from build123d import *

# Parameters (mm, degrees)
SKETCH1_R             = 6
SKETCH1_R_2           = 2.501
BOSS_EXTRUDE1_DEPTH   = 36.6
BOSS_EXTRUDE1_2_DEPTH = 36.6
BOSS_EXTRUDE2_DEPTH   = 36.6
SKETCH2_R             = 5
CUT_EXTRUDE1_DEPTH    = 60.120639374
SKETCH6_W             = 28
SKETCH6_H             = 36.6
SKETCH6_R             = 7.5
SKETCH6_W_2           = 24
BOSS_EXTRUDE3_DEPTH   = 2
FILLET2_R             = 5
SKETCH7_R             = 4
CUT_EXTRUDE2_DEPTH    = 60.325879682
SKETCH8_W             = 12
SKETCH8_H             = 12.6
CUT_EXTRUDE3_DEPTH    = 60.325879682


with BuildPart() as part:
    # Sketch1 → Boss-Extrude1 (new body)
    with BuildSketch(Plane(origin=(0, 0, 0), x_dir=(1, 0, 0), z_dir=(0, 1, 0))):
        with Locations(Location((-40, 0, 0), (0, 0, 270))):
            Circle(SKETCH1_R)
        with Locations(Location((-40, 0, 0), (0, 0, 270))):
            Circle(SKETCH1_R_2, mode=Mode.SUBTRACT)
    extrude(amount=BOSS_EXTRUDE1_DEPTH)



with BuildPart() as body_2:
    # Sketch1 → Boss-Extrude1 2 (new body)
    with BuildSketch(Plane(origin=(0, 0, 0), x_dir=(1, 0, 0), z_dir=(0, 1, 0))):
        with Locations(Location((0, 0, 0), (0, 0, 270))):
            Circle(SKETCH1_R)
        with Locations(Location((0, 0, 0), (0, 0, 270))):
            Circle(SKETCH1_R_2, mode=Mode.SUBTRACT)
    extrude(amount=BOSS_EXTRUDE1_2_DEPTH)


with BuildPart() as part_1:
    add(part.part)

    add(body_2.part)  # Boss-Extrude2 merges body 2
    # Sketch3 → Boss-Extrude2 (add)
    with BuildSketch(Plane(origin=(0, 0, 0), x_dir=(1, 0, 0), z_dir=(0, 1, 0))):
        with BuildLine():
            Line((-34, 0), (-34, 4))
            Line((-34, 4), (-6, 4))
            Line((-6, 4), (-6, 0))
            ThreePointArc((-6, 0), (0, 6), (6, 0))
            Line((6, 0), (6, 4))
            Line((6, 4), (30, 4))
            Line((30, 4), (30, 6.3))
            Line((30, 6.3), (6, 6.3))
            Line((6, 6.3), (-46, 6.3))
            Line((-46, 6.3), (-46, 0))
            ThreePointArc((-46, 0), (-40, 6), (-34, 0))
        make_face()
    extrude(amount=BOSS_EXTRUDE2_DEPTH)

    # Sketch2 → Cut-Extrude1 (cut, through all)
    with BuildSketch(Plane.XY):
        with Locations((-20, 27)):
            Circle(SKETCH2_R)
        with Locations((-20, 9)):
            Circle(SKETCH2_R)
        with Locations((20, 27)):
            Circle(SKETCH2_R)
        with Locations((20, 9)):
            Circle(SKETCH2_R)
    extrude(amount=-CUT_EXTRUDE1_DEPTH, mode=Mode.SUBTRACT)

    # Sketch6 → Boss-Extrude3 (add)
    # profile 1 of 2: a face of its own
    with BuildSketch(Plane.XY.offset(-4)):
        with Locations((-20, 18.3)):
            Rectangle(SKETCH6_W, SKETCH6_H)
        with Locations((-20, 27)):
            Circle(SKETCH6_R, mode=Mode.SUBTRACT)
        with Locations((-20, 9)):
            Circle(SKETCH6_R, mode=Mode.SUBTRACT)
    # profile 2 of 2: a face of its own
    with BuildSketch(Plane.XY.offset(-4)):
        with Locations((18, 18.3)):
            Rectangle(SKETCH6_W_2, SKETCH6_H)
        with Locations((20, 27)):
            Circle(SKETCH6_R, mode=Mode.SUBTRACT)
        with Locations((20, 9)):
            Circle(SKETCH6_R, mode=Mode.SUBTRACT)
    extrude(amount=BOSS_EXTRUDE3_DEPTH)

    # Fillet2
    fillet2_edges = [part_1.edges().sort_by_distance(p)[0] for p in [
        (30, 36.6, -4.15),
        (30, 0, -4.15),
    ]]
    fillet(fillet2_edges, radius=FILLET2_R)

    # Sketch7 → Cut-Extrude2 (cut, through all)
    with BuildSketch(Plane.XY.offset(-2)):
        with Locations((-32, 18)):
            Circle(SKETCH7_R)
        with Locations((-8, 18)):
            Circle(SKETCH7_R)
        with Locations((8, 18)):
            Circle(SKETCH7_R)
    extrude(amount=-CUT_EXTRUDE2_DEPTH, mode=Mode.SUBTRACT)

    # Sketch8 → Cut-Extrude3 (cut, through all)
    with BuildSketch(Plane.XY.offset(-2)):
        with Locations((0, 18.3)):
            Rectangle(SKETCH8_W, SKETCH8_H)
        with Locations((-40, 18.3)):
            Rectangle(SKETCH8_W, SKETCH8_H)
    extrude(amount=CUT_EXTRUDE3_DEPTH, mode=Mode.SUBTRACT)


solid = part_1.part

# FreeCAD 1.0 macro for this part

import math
import FreeCAD as App
import Part
import Sketcher

V = App.Vector
Q = App.Units.Quantity


def edges_at(feature, points):
    """Names of the edges that pass closest to the given points."""
    edges = feature.Shape.Edges
    near = lambda p: min(range(len(edges)), key=lambda i: edges[i].distToShape(Part.Vertex(*p))[0])
    return sorted({f"Edge{near(p) + 1}" for p in points})


def add_polygon(sketch, points):
    """Adds a closed chain of lines whose ends are joined by coincident constraints."""
    first, n = sketch.GeometryCount, len(points)
    for a, b in zip(points, points[1:] + points[:1]):
        sketch.addGeometry(Part.LineSegment(App.Vector(*a, 0), App.Vector(*b, 0)), False)
    for i in range(n):
        sketch.addConstraint(Sketcher.Constraint("Coincident", first + i, 2, first + (i + 1) % n, 1))

doc = App.newDocument("Part")
body = doc.addObject("PartDesign::Body", "Body")

sketch1 = body.newObject("Sketcher::SketchObject", "Sketch")
sketch1.AttachmentSupport = (doc.getObject("XZ_Plane"), [""])
sketch1.MapMode = "FlatFace"
sketch1.addGeometry([
    Part.Circle(V(-40, 0, 0), V(0, 0, 1), 6),
    Part.Circle(V(-40, 0, 0), V(0, 0, 1), 2.5),
], False)
sketch1.addConstraint([
    Sketcher.Constraint("Coincident", 1, 3, 0, 3),
    Sketcher.Constraint("PointOnObject", 0, 3, -1),
    Sketcher.Constraint("Diameter", 0, Q("12 mm")),
    Sketcher.Constraint("Diameter", 1, Q("5.002 mm")),
    Sketcher.Constraint("DistanceX", 0, 3, -1, 1, Q("40 mm")),
])
pad1 = body.newObject("PartDesign::Pad", "Pad")
pad1.Profile = sketch1
pad1.Length = 36.6
pad1.Reversed = True
body2 = doc.addObject("PartDesign::Body", "Body001")

sketch2 = body2.newObject("Sketcher::SketchObject", "Sketch001")
sketch2.AttachmentSupport = (doc.getObject("XZ_Plane001"), [""])
sketch2.MapMode = "FlatFace"
sketch2.addGeometry([
    Part.Circle(V(0, 0, 0), V(0, 0, 1), 6),
    Part.Circle(V(0, 0, 0), V(0, 0, 1), 2.5),
], False)
sketch2.addConstraint([
    Sketcher.Constraint("Coincident", 0, 3, -1, 1),
    Sketcher.Constraint("Coincident", 1, 3, -1, 1),
    Sketcher.Constraint("Diameter", 0, Q("12 mm")),
    Sketcher.Constraint("Diameter", 1, Q("5.002 mm")),
])
pad2 = body2.newObject("PartDesign::Pad", "Pad001")
pad2.Profile = sketch2
pad2.Length = 36.6
pad2.Reversed = True
body.AllowCompound = True
doc.recompute()

boolean = body.newObject("PartDesign::Boolean", "Boolean")
boolean.Type = "Fuse"
boolean.addObjects([body2])

sketch3 = body.newObject("Sketcher::SketchObject", "Sketch002")
sketch3.AttachmentSupport = (doc.getObject("XZ_Plane"), [""])
sketch3.MapMode = "FlatFace"
sketch3.addGeometry([
    Part.LineSegment(V(-34, 0, 0), V(-34, -4, 0)),
    Part.LineSegment(V(-34, -4, 0), V(-6, -4, 0)),
    Part.LineSegment(V(-6, -4, 0), V(-6, 0, 0)),
    Part.ArcOfCircle(Part.Circle(V(0, 0, 0), V(0, 0, 1), 6), math.radians(180), math.radians(360)),
    Part.LineSegment(V(6, 0, 0), V(6, -4, 0)),
    Part.LineSegment(V(6, -4, 0), V(30, -4, 0)),
    Part.LineSegment(V(30, -4, 0), V(30, -6.3, 0)),
    Part.LineSegment(V(30, -6.3, 0), V(-46, -6.3, 0)),
    Part.LineSegment(V(-46, -6.3, 0), V(-46, 0, 0)),
    Part.ArcOfCircle(Part.Circle(V(-40, 0, 0), V(0, 0, 1), 6), math.radians(180), math.radians(360)),
], False)
sketch3.addConstraint([
    Sketcher.Constraint("Coincident", 0, 2, 1, 1),
    Sketcher.Constraint("Coincident", 1, 2, 2, 1),
    Sketcher.Constraint("Tangent", 2, 2, 3, 1),
    Sketcher.Constraint("Tangent", 3, 2, 4, 1),
    Sketcher.Constraint("Coincident", 4, 2, 5, 1),
    Sketcher.Constraint("Coincident", 5, 2, 6, 1),
    Sketcher.Constraint("Coincident", 6, 2, 7, 1),
    Sketcher.Constraint("Coincident", 7, 2, 8, 1),
    Sketcher.Constraint("Tangent", 8, 2, 9, 1),
    Sketcher.Constraint("Tangent", 9, 2, 0, 1),
    Sketcher.Constraint("Vertical", 0),
    Sketcher.Constraint("Horizontal", 1),
    Sketcher.Constraint("Vertical", 2),
    Sketcher.Constraint("Vertical", 4),
    Sketcher.Constraint("Horizontal", 5),
    Sketcher.Constraint("Vertical", 6),
    Sketcher.Constraint("Horizontal", 7),
    Sketcher.Constraint("Vertical", 8),
    Sketcher.Constraint("Coincident", 3, 3, -1, 1),
    Sketcher.Constraint("Equal", 3, 9),
    Sketcher.Constraint("PointOnObject", 9, 3, -1),
    Sketcher.Constraint("Horizontal", 1, 2, 4, 2),
    Sketcher.Constraint("Radius", 3, Q("6 mm")),
    Sketcher.Constraint("DistanceX", 1, 1, 1, 2, Q("28 mm")),
    Sketcher.Constraint("DistanceX", 5, 1, 5, 2, Q("24 mm")),
    Sketcher.Constraint("DistanceY", 0, 2, 0, 1, Q("4 mm")),
    Sketcher.Constraint("DistanceY", 6, 2, 6, 1, Q("2.3 mm")),
])
pad3 = body.newObject("PartDesign::Pad", "Pad002")
pad3.Profile = sketch3
pad3.Length = 36.6
pad3.Reversed = True

sketch4 = body.newObject("Sketcher::SketchObject", "Sketch003")
sketch4.AttachmentSupport = (doc.getObject("XY_Plane"), [""])
sketch4.MapMode = "FlatFace"
sketch4.addGeometry([
    Part.Circle(V(-20, 27, 0), V(0, 0, 1), 5),
    Part.Circle(V(-20, 9, 0), V(0, 0, 1), 5),
    Part.Circle(V(20, 27, 0), V(0, 0, 1), 5),
    Part.Circle(V(20, 9, 0), V(0, 0, 1), 5),
], False)
sketch4.addConstraint([
    Sketcher.Constraint("Equal", 0, 1),
    Sketcher.Constraint("Equal", 1, 2),
    Sketcher.Constraint("Equal", 2, 3),
    Sketcher.Constraint("Symmetric", 0, 3, 2, 3, -2),
    Sketcher.Constraint("Symmetric", 1, 3, 3, 3, -2),
    Sketcher.Constraint("Vertical", 0, 3, 1, 3),
    Sketcher.Constraint("Diameter", 0, Q("10 mm")),
    Sketcher.Constraint("DistanceX", 0, 3, -1, 1, Q("20 mm")),
    Sketcher.Constraint("DistanceY", -1, 1, 0, 3, Q("27 mm")),
    Sketcher.Constraint("DistanceY", -1, 1, 1, 3, Q("9 mm")),
])
pocket1 = body.newObject("PartDesign::Pocket", "Pocket")
pocket1.Profile = sketch4
pocket1.Type = "ThroughAll"

sketch5 = body.newObject("Sketcher::SketchObject", "Sketch004")
sketch5.AttachmentSupport = (doc.getObject("XY_Plane"), [""])
sketch5.MapMode = "FlatFace"
sketch5.AttachmentOffset = App.Placement(V(0, 0, -4), App.Rotation())
add_polygon(sketch5, [(-34, 37), (-34, 0), (-6, 0), (-6, 37)])
sketch5.addGeometry(Part.Circle(V(-20, 9, 0), V(0, 0, 1), 8), False)
sketch5.addGeometry(Part.Circle(V(-20, 27, 0), V(0, 0, 1), 8), False)
add_polygon(sketch5, [(6, 37), (6, 0), (30, 0), (30, 37)])
sketch5.addGeometry(Part.Circle(V(20, 9, 0), V(0, 0, 1), 8), False)
sketch5.addGeometry(Part.Circle(V(20, 27, 0), V(0, 0, 1), 8), False)
sketch5.addConstraint([
    Sketcher.Constraint("Vertical", 0),
    Sketcher.Constraint("Horizontal", 1),
    Sketcher.Constraint("Vertical", 2),
    Sketcher.Constraint("Horizontal", 3),
    Sketcher.Constraint("Vertical", 6),
    Sketcher.Constraint("Horizontal", 7),
    Sketcher.Constraint("Vertical", 8),
    Sketcher.Constraint("Horizontal", 9),
    Sketcher.Constraint("Equal", 4, 5),
    Sketcher.Constraint("Equal", 5, 10),
    Sketcher.Constraint("Equal", 10, 11),
    Sketcher.Constraint("Symmetric", 1, 2, 6, 2, -1, 1),
    Sketcher.Constraint("Symmetric", 4, 3, 10, 3, -2),
    Sketcher.Constraint("Symmetric", 5, 3, 11, 3, -2),
    Sketcher.Constraint("PointOnObject", 0, 2, -1),
    Sketcher.Constraint("Horizontal", 3, 2, 8, 2),
    Sketcher.Constraint("Vertical", 4, 3, 5, 3),
    Sketcher.Constraint("Diameter", 4, Q("15 mm")),
    Sketcher.Constraint("DistanceX", 1, 1, 1, 2, Q("28 mm")),
    Sketcher.Constraint("DistanceX", 7, 1, 7, 2, Q("24 mm")),
    Sketcher.Constraint("DistanceY", 0, 2, 0, 1, Q("36.6 mm")),
    Sketcher.Constraint("DistanceX", 4, 3, -1, 1, Q("20 mm")),
    Sketcher.Constraint("DistanceY", -1, 1, 4, 3, Q("9 mm")),
    Sketcher.Constraint("DistanceY", -1, 1, 5, 3, Q("27 mm")),
    Sketcher.Constraint("DistanceX", 0, 2, -1, 1, Q("34 mm")),
])
pad4 = body.newObject("PartDesign::Pad", "Pad003")
pad4.Profile = sketch5
pad4.Length = 2
doc.recompute()

fillet = body.newObject("PartDesign::Fillet", "Fillet")
fillet.Base = (pad4, edges_at(pad4, [(30, 36.6, -4.15), (30, 0, -4.15)]))
fillet.Radius = 5

sketch6 = body.newObject("Sketcher::SketchObject", "Sketch005")
sketch6.AttachmentSupport = (doc.getObject("XY_Plane"), [""])
sketch6.MapMode = "FlatFace"
sketch6.AttachmentOffset = App.Placement(V(0, 0, -2), App.Rotation())
sketch6.addGeometry([
    Part.Circle(V(-32, 18, 0), V(0, 0, 1), 4),
    Part.Circle(V(-8, 18, 0), V(0, 0, 1), 4),
    Part.Circle(V(8, 18, 0), V(0, 0, 1), 4),
], False)
sketch6.addConstraint([
    Sketcher.Constraint("Equal", 0, 1),
    Sketcher.Constraint("Equal", 1, 2),
    Sketcher.Constraint("Symmetric", 1, 3, 2, 3, -2),
    Sketcher.Constraint("Horizontal", 0, 3, 1, 3),
    Sketcher.Constraint("Diameter", 0, Q("8 mm")),
    Sketcher.Constraint("DistanceX", 0, 3, -1, 1, Q("32 mm")),
    Sketcher.Constraint("DistanceY", -1, 1, 0, 3, Q("18 mm")),
    Sketcher.Constraint("DistanceX", 1, 3, -1, 1, Q("8 mm")),
])
pocket2 = body.newObject("PartDesign::Pocket", "Pocket001")
pocket2.Profile = sketch6
pocket2.Type = "ThroughAll"

sketch7 = body.newObject("Sketcher::SketchObject", "Sketch006")
sketch7.AttachmentSupport = (doc.getObject("XY_Plane"), [""])
sketch7.MapMode = "FlatFace"
sketch7.AttachmentOffset = App.Placement(V(0, 0, -2), App.Rotation())
add_polygon(sketch7, [(-6, 25), (-6, 12), (6, 12), (6, 25)])
add_polygon(sketch7, [(-46, 25), (-46, 12), (-34, 12), (-34, 25)])
sketch7.addConstraint([
    Sketcher.Constraint("Vertical", 0),
    Sketcher.Constraint("Horizontal", 1),
    Sketcher.Constraint("Vertical", 2),
    Sketcher.Constraint("Horizontal", 3),
    Sketcher.Constraint("Vertical", 4),
    Sketcher.Constraint("Horizontal", 5),
    Sketcher.Constraint("Vertical", 6),
    Sketcher.Constraint("Horizontal", 7),
    Sketcher.Constraint("Horizontal", 1, 2, 4, 2),
    Sketcher.Constraint("Horizontal", 3, 2, 6, 2),
    Sketcher.Constraint("Equal", 3, 5),
    Sketcher.Constraint("DistanceX", 1, 1, 1, 2, Q("12 mm")),
    Sketcher.Constraint("DistanceY", 0, 2, 0, 1, Q("12.6 mm")),
    Sketcher.Constraint("DistanceX", 0, 2, -1, 1, Q("6 mm")),
    Sketcher.Constraint("DistanceY", -1, 1, 0, 2, Q("12 mm")),
    Sketcher.Constraint("DistanceX", 4, 2, -1, 1, Q("46 mm")),
])
pocket3 = body.newObject("PartDesign::Pocket", "Pocket002")
pocket3.Profile = sketch7
pocket3.Type = "ThroughAll"
pocket3.Reversed = True

doc.recompute()
